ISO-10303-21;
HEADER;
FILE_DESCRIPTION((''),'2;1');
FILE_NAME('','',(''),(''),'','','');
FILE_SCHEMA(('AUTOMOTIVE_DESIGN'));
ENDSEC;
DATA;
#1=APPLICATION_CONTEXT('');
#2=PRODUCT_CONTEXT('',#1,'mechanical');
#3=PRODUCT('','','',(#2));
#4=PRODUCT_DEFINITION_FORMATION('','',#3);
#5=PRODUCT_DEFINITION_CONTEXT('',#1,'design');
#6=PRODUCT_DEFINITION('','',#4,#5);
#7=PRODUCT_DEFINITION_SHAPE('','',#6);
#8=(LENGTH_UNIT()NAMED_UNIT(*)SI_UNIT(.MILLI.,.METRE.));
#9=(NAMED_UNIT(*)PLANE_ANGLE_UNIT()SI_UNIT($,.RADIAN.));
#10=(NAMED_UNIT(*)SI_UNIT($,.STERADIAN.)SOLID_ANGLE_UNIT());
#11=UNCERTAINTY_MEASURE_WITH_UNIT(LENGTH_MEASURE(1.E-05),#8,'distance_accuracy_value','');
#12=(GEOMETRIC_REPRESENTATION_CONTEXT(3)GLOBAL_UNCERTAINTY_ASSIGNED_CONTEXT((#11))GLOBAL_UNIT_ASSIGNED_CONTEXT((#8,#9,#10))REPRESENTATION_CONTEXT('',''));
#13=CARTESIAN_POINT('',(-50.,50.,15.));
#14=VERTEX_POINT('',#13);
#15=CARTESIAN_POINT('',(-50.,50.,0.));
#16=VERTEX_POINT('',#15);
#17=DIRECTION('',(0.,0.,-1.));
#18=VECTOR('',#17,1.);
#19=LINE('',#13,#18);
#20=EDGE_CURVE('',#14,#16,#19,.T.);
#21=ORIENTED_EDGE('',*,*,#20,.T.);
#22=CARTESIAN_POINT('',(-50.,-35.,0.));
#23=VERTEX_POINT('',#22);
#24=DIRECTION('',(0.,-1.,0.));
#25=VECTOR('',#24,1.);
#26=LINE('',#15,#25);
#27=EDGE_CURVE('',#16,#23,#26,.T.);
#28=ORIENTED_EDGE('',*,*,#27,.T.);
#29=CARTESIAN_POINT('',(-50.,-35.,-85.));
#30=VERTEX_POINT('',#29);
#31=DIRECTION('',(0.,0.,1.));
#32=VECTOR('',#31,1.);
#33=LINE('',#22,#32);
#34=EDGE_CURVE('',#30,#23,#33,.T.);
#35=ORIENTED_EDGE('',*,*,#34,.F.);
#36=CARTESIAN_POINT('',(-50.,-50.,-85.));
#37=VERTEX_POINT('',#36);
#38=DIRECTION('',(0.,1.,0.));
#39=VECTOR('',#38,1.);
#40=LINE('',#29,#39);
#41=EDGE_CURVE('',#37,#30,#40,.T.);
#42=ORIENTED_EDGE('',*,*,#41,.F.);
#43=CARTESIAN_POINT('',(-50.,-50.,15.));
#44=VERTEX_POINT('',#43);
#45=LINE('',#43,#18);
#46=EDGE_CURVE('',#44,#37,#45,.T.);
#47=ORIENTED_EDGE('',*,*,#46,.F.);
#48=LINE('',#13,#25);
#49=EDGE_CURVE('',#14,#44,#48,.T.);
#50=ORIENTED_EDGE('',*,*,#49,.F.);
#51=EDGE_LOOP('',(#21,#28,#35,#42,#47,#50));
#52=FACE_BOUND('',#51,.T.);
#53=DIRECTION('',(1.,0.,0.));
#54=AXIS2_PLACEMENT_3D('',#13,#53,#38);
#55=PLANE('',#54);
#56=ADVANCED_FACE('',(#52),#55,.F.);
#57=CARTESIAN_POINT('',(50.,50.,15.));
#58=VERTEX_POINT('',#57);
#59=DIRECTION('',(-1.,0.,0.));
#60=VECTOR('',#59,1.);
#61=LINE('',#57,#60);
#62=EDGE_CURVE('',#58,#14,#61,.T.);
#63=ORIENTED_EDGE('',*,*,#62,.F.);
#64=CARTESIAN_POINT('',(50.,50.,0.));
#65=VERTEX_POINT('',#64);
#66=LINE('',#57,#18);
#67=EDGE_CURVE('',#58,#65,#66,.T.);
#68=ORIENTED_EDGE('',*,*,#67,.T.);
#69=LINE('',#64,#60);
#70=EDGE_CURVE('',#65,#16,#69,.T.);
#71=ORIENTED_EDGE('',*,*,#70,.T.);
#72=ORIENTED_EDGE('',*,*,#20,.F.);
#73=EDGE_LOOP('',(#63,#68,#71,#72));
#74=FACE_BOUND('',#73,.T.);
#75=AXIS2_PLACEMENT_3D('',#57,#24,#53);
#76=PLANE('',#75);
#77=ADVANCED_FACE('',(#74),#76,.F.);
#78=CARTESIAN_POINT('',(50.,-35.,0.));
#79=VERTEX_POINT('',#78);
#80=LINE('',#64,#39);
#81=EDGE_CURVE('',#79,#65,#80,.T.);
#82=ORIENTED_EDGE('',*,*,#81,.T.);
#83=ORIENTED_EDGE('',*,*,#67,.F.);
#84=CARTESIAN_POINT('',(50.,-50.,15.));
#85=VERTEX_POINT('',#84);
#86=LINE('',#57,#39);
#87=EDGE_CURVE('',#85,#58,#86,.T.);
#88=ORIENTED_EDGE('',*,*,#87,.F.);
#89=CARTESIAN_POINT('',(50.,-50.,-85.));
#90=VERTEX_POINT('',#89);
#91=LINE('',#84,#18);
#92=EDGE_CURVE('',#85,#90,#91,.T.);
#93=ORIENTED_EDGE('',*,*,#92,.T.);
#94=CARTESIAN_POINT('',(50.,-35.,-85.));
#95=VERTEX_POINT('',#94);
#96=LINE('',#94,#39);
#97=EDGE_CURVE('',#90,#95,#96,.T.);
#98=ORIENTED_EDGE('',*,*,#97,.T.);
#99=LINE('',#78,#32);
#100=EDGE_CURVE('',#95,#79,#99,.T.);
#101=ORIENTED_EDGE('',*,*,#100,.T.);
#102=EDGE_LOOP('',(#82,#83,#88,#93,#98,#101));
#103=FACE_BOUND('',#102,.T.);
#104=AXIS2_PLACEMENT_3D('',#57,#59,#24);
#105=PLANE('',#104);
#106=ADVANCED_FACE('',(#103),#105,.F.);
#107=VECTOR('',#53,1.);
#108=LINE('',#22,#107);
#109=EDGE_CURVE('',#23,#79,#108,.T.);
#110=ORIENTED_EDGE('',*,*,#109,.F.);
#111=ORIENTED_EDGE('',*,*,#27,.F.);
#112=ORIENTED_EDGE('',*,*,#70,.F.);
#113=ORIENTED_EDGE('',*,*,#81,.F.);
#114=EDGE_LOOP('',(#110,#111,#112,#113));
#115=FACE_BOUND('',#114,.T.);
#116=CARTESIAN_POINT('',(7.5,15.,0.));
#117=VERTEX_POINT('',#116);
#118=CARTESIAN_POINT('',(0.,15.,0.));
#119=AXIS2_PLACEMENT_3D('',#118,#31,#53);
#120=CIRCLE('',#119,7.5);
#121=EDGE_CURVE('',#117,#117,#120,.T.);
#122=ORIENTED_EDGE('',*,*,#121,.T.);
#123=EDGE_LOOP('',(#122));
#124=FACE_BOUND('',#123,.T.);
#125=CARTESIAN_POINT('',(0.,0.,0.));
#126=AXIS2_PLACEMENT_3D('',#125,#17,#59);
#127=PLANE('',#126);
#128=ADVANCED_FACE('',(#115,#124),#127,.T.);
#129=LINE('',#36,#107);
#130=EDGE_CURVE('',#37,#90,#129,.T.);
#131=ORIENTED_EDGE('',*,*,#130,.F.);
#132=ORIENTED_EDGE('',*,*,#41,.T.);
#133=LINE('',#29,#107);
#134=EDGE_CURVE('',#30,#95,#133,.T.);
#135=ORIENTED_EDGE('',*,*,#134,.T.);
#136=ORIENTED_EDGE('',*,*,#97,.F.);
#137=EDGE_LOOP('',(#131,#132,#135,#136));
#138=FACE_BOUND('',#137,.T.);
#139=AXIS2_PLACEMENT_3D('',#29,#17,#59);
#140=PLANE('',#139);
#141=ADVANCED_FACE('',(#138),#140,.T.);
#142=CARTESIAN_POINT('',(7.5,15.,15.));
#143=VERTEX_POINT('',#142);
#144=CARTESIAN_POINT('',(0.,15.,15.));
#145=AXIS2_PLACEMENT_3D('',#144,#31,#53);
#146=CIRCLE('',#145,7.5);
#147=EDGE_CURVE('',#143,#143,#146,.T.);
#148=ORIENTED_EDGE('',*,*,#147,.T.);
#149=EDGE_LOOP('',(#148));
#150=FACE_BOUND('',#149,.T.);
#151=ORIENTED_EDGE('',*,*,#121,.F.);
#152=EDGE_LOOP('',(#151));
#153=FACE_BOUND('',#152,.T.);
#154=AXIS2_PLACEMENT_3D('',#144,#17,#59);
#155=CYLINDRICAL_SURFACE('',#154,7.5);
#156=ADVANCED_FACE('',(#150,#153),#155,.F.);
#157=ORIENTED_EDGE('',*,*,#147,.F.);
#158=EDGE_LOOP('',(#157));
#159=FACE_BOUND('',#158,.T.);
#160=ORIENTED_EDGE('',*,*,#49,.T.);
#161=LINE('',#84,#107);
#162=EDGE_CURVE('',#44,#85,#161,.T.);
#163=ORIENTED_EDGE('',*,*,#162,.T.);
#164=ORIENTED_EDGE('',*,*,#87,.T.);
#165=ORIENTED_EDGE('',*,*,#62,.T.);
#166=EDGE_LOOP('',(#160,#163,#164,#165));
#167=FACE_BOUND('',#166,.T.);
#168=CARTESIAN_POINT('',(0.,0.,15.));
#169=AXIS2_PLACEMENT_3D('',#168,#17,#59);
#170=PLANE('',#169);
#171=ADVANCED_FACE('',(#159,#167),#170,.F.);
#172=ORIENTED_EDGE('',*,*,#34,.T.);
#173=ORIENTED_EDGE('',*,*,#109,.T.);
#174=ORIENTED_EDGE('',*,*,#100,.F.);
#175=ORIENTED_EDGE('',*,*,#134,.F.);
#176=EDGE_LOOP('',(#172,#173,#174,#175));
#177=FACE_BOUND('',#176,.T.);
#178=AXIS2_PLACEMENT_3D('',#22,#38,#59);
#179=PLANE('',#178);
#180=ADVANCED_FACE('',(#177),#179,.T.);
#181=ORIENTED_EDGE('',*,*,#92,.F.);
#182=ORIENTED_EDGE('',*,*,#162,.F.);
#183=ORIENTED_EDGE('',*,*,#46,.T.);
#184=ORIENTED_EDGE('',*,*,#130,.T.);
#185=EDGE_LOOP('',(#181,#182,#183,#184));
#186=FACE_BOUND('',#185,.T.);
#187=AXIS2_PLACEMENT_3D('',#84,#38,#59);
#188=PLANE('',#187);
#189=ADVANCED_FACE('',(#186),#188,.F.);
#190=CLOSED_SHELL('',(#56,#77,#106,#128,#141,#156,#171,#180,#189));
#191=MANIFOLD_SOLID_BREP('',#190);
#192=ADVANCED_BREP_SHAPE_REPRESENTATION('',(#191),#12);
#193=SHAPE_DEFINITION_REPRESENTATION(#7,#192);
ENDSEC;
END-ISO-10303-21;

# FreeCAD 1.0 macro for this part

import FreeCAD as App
import Part
import Sketcher

V = App.Vector


def add_polygon(sketch, points):
    """Adds a closed chain of lines whose ends are joined by coincident constraints."""
    first, n = sketch.GeometryCount, len(points)
    for a, b in zip(points, points[1:] + points[:1]):
        sketch.addGeometry(Part.LineSegment(App.Vector(*a, 0), App.Vector(*b, 0)), False)
    for i in range(n):
        sketch.addConstraint(Sketcher.Constraint("Coincident", first + i, 2, first + (i + 1) % n, 1))

doc = App.newDocument("Part")
body = doc.addObject("PartDesign::Body", "Body")

# Sketch on XY plane
sketch1 = body.newObject("Sketcher::SketchObject", "Sketch")
sketch1.AttachmentSupport = (doc.getObject("XY_Plane"), [""])
sketch1.MapMode = "FlatFace"
add_polygon(sketch1, [(-50, 50), (-50, -50), (50, -50), (50, 50)])  # lines 0-3
sketch1.addGeometry(Part.Circle(V(0, 15, 0), V(0, 0, 1), 8), False)  # 4
sketch1.addConstraint([
    Sketcher.Constraint("Vertical", 0),
    Sketcher.Constraint("Horizontal", 1),
    Sketcher.Constraint("Vertical", 2),
    Sketcher.Constraint("Horizontal", 3),
    Sketcher.Constraint("Symmetric", 0, 2, 2, 2, -1, 1),
    Sketcher.Constraint("PointOnObject", 4, 3, -2),
    Sketcher.Constraint("Equal", 3, 0),
    Sketcher.Constraint("Diameter", 4, 15.0),
    Sketcher.Constraint("DistanceX", 1, 1, 1, 2, 100.0),
    Sketcher.Constraint("DistanceY", -1, 1, 4, 3, 15.0),
])
pad1 = body.newObject("PartDesign::Pad", "Pad")
pad1.Profile = sketch1
pad1.Length = 15

# Sketch on YZ plane
sketch2 = body.newObject("Sketcher::SketchObject", "Sketch001")
sketch2.AttachmentSupport = (doc.getObject("YZ_Plane"), [""])
sketch2.MapMode = "FlatFace"
sketch2.AttachmentOffset = App.Placement(V(0, 0, 50), App.Rotation())
add_polygon(sketch2, [(-35, 0), (-50, 0), (-50, -85), (-35, -85)])  # lines 0-3
sketch2.addConstraint([
    Sketcher.Constraint("Horizontal", 0),
    Sketcher.Constraint("Vertical", 1),
    Sketcher.Constraint("Horizontal", 2),
    Sketcher.Constraint("Vertical", 3),
    Sketcher.Constraint("PointOnObject", 0, 2, -1),
    Sketcher.Constraint("DistanceX", 0, 2, 0, 1, 15.0),
    Sketcher.Constraint("DistanceY", 1, 2, 1, 1, 85.0),
    Sketcher.Constraint("DistanceX", 0, 2, -1, 1, 50.0),
])
pad2 = body.newObject("PartDesign::Pad", "Pad001")
pad2.Profile = sketch2
pad2.Length = 100
pad2.Reversed = True

doc.recompute()
